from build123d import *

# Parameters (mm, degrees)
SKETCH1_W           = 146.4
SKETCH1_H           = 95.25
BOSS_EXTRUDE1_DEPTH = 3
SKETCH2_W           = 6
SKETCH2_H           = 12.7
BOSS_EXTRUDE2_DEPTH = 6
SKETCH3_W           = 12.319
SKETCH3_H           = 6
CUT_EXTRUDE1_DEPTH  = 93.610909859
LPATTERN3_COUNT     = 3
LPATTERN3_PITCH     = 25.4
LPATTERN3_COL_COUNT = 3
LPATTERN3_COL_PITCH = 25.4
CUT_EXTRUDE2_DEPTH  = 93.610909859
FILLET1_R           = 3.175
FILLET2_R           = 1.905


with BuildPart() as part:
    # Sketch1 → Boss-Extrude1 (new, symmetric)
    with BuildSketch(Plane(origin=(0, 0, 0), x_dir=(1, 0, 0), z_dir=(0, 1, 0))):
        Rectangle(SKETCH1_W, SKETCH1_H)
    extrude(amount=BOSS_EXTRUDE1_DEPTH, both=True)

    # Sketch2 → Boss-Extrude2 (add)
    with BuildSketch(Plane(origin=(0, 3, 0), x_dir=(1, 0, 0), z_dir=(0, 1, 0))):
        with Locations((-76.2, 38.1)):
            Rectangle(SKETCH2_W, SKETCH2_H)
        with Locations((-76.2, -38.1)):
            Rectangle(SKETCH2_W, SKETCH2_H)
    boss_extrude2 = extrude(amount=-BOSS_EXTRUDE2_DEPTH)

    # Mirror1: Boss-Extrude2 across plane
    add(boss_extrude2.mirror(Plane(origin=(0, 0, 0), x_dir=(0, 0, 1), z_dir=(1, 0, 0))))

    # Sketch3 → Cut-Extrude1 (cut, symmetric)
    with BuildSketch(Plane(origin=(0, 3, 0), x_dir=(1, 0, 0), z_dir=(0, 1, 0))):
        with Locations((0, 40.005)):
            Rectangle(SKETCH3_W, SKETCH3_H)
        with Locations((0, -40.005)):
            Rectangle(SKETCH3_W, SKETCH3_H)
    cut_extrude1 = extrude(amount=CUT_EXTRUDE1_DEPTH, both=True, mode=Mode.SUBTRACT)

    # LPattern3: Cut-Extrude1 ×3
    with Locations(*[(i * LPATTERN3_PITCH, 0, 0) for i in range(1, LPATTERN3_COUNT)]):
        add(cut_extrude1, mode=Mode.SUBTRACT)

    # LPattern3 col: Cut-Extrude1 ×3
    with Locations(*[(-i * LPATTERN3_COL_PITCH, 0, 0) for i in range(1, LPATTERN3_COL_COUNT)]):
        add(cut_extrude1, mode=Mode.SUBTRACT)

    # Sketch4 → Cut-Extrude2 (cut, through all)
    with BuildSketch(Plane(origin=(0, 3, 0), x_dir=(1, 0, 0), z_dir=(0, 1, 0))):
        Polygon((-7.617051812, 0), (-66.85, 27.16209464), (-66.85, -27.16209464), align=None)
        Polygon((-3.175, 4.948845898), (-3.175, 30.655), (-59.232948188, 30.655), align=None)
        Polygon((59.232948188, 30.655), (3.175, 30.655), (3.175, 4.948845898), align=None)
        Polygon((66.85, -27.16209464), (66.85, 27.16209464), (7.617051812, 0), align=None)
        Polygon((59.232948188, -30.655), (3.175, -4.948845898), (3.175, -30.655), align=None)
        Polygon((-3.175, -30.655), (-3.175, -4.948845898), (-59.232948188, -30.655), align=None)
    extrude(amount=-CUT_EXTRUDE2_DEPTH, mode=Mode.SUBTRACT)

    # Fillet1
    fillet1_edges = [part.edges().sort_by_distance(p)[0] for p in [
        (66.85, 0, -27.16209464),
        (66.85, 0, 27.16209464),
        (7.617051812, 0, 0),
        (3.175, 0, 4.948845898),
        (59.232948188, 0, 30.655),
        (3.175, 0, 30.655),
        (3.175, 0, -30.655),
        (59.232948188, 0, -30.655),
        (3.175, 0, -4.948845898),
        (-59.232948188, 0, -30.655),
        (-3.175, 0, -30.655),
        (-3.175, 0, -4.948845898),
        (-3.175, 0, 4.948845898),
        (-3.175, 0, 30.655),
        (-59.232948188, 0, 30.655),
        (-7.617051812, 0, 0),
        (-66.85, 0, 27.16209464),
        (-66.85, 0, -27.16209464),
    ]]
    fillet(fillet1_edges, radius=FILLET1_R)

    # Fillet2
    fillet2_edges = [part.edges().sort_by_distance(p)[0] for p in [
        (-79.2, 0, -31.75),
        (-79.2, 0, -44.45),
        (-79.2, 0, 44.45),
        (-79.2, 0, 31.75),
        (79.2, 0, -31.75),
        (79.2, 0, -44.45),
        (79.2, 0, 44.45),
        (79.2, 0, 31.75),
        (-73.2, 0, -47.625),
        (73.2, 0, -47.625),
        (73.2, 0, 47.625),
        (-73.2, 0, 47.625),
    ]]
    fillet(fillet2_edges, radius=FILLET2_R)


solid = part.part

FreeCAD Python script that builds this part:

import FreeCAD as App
import Part
import Sketcher
from FreeCAD import Vector
Q = App.Units.Quantity


def edges_at(feature, points):
    """Names of the edges that pass closest to the given points."""
    edges = feature.Shape.Edges
    near = lambda p: min(range(len(edges)), key=lambda i: edges[i].distToShape(Part.Vertex(*p))[0])
    return sorted({f"Edge{near(p) + 1}" for p in points})

doc = App.newDocument("Part")
body = doc.addObject("PartDesign::Body", "Body")

sketch1 = doc.addObject("Sketcher::SketchObject", "Sketch")
body.addObject(sketch1)
sketch1.AttachmentSupport = (doc.XZ_Plane, [""])
sketch1.MapMode = "FlatFace"
sketch1.addGeometry([
    Part.LineSegment(Vector(-73, -48, 0), Vector(-73, 48, 0)),
    Part.LineSegment(Vector(-73, 48, 0), Vector(73, 48, 0)),
    Part.LineSegment(Vector(73, 48, 0), Vector(73, -48, 0)),
    Part.LineSegment(Vector(73, -48, 0), Vector(-73, -48, 0)),
], False)
sketch1.addConstraint([
    Sketcher.Constraint("Coincident", 0, 2, 1, 1),
    Sketcher.Constraint("Coincident", 1, 2, 2, 1),
    Sketcher.Constraint("Coincident", 2, 2, 3, 1),
    Sketcher.Constraint("Coincident", 3, 2, 0, 1),
    Sketcher.Constraint("Vertical", 0),
    Sketcher.Constraint("Horizontal", 1),
    Sketcher.Constraint("Vertical", 2),
    Sketcher.Constraint("Horizontal", 3),
    Sketcher.Constraint("Symmetric", 0, 2, 2, 2, -1, 1),
    Sketcher.Constraint("DistanceY", 0, 1, 0, 2, Q("3.75 in")),
    Sketcher.Constraint("DistanceX", 1, 1, 1, 2, 146.4),
])
pad1 = doc.addObject("PartDesign::Pad", "Pad")
body.addObject(pad1)
pad1.Profile = sketch1
pad1.Length = 6
pad1.Midplane = True

sketch2 = doc.addObject("Sketcher::SketchObject", "Sketch001")
body.addObject(sketch2)
sketch2.AttachmentSupport = (doc.XZ_Plane, [""])
sketch2.MapMode = "FlatFace"
sketch2.AttachmentOffset = App.Placement(Vector(0, 0, -3), App.Rotation())
sketch2.addGeometry([
    Part.LineSegment(Vector(-79, -44, 0), Vector(-79, -32, 0)),
    Part.LineSegment(Vector(-79, -32, 0), Vector(-73, -32, 0)),
    Part.LineSegment(Vector(-73, -32, 0), Vector(-73, -44, 0)),
    Part.LineSegment(Vector(-73, -44, 0), Vector(-79, -44, 0)),
    Part.LineSegment(Vector(-79, 32, 0), Vector(-79, 44, 0)),
    Part.LineSegment(Vector(-79, 44, 0), Vector(-73, 44, 0)),
    Part.LineSegment(Vector(-73, 44, 0), Vector(-73, 32, 0)),
    Part.LineSegment(Vector(-73, 32, 0), Vector(-79, 32, 0)),
], False)
sketch2.addConstraint([
    Sketcher.Constraint("Coincident", 0, 2, 1, 1),
    Sketcher.Constraint("Coincident", 1, 2, 2, 1),
    Sketcher.Constraint("Coincident", 2, 2, 3, 1),
    Sketcher.Constraint("Coincident", 3, 2, 0, 1),
    Sketcher.Constraint("Coincident", 4, 2, 5, 1),
    Sketcher.Constraint("Coincident", 5, 2, 6, 1),
    Sketcher.Constraint("Coincident", 6, 2, 7, 1),
    Sketcher.Constraint("Coincident", 7, 2, 4, 1),
    Sketcher.Constraint("Vertical", 0),
    Sketcher.Constraint("Horizontal", 1),
    Sketcher.Constraint("Vertical", 2),
    Sketcher.Constraint("Horizontal", 3),
    Sketcher.Constraint("Vertical", 4),
    Sketcher.Constraint("Horizontal", 5),
    Sketcher.Constraint("Vertical", 6),
    Sketcher.Constraint("Horizontal", 7),
    Sketcher.Constraint("Symmetric", 3, 2, 4, 2, -1),
    Sketcher.Constraint("Symmetric", 1, 2, 6, 2, -1),
    Sketcher.Constraint("DistanceY", 0, 1, 0, 2, Q("0.5 in")),
    Sketcher.Constraint("DistanceY", 0, 2, 4, 2, Q("3 in")),
    Sketcher.Constraint("DistanceX", 1, 1, 1, 2, 6.0),
    Sketcher.Constraint("DistanceX", 0, 2, -1, 1, 79.2),
])
pad2 = doc.addObject("PartDesign::Pad", "Pad001")
body.addObject(pad2)
pad2.Profile = sketch2
pad2.Length = 6
doc.recompute()

mirrored = doc.addObject("PartDesign::Mirrored", "Mirrored")
body.addObject(mirrored)
mirrored.Originals = [pad2]
mirrored.MirrorPlane = (doc.YZ_Plane, [""])
body.Tip = mirrored

sketch3 = doc.addObject("Sketcher::SketchObject", "Sketch002")
body.addObject(sketch3)
sketch3.AttachmentSupport = (doc.XZ_Plane, [""])
sketch3.MapMode = "FlatFace"
sketch3.AttachmentOffset = App.Placement(Vector(0, 0, -3), App.Rotation())
sketch3.addGeometry([
    Part.LineSegment(Vector(-6, -43, 0), Vector(-6, -37, 0)),
    Part.LineSegment(Vector(-6, -37, 0), Vector(6, -37, 0)),
    Part.LineSegment(Vector(6, -37, 0), Vector(6, -43, 0)),
    Part.LineSegment(Vector(6, -43, 0), Vector(-6, -43, 0)),
    Part.LineSegment(Vector(-6, 37, 0), Vector(-6, 43, 0)),
    Part.LineSegment(Vector(-6, 43, 0), Vector(6, 43, 0)),
    Part.LineSegment(Vector(6, 43, 0), Vector(6, 37, 0)),
    Part.LineSegment(Vector(6, 37, 0), Vector(-6, 37, 0)),
], False)
sketch3.addConstraint([
    Sketcher.Constraint("Coincident", 0, 2, 1, 1),
    Sketcher.Constraint("Coincident", 1, 2, 2, 1),
    Sketcher.Constraint("Coincident", 2, 2, 3, 1),
    Sketcher.Constraint("Coincident", 3, 2, 0, 1),
    Sketcher.Constraint("Coincident", 4, 2, 5, 1),
    Sketcher.Constraint("Coincident", 5, 2, 6, 1),
    Sketcher.Constraint("Coincident", 6, 2, 7, 1),
    Sketcher.Constraint("Coincident", 7, 2, 4, 1),
    Sketcher.Constraint("Vertical", 0),
    Sketcher.Constraint("Horizontal", 1),
    Sketcher.Constraint("Vertical", 2),
    Sketcher.Constraint("Horizontal", 3),
    Sketcher.Constraint("Vertical", 4),
    Sketcher.Constraint("Horizontal", 5),
    Sketcher.Constraint("Vertical", 6),
    Sketcher.Constraint("Horizontal", 7),
    Sketcher.Constraint("Symmetric", 2, 2, 4, 2, -1, 1),
    Sketcher.Constraint("Symmetric", 0, 2, 6, 2, -1, 1),
    Sketcher.Constraint("Vertical", 3, 2, 4, 2),
    Sketcher.Constraint("DistanceX", 1, 1, 1, 2, Q("0.485 in")),
    Sketcher.Constraint("DistanceY", 0, 2, 4, 2, Q("3.15 in")),
    Sketcher.Constraint("DistanceY", 0, 1, 0, 2, 6.0),
])
pocket1 = doc.addObject("PartDesign::Pocket", "Pocket")
body.addObject(pocket1)
pocket1.Profile = sketch3
pocket1.Length = 187.22182
pocket1.Midplane = True
doc.recompute()

linearpattern = doc.addObject("PartDesign::LinearPattern", "LinearPattern")
body.addObject(linearpattern)
linearpattern.Originals = [pocket1]
linearpattern.Direction = (doc.X_Axis, [""])
linearpattern.Mode = "offset"
linearpattern.Offset = Q("1 in")
linearpattern.Occurrences = 3
body.Tip = linearpattern
doc.recompute()

linearpattern2 = doc.addObject("PartDesign::LinearPattern", "LinearPattern001")
body.addObject(linearpattern2)
linearpattern2.Originals = [pocket1]
linearpattern2.Direction = (doc.X_Axis, [""])
linearpattern2.Mode = "offset"
linearpattern2.Offset = Q("1 in")
linearpattern2.Occurrences = 3
linearpattern2.Reversed = True
body.Tip = linearpattern2

sketch4 = doc.addObject("Sketcher::SketchObject", "Sketch003")
body.addObject(sketch4)
sketch4.AttachmentSupport = (doc.XZ_Plane, [""])
sketch4.MapMode = "FlatFace"
sketch4.AttachmentOffset = App.Placement(Vector(0, 0, -3), App.Rotation())
sketch4.addGeometry([
    Part.LineSegment(Vector(-8, 0, 0), Vector(-67, -27, 0)),
    Part.LineSegment(Vector(-67, -27, 0), Vector(-67, 27, 0)),
    Part.LineSegment(Vector(-67, 27, 0), Vector(-8, 0, 0)),
    Part.LineSegment(Vector(-3, -5, 0), Vector(-3, -31, 0)),
    Part.LineSegment(Vector(-3, -31, 0), Vector(-59, -31, 0)),
    Part.LineSegment(Vector(-59, -31, 0), Vector(-3, -5, 0)),
    Part.LineSegment(Vector(59, -31, 0), Vector(3, -31, 0)),
    Part.LineSegment(Vector(3, -31, 0), Vector(3, -5, 0)),
    Part.LineSegment(Vector(3, -5, 0), Vector(59, -31, 0)),
    Part.LineSegment(Vector(67, 27, 0), Vector(67, -27, 0)),
    Part.LineSegment(Vector(67, -27, 0), Vector(8, 0, 0)),
    Part.LineSegment(Vector(8, 0, 0), Vector(67, 27, 0)),
    Part.LineSegment(Vector(59, 31, 0), Vector(3, 5, 0)),
    Part.LineSegment(Vector(3, 5, 0), Vector(3, 31, 0)),
    Part.LineSegment(Vector(3, 31, 0), Vector(59, 31, 0)),
    Part.LineSegment(Vector(-3, 31, 0), Vector(-3, 5, 0)),
    Part.LineSegment(Vector(-3, 5, 0), Vector(-59, 31, 0)),
    Part.LineSegment(Vector(-59, 31, 0), Vector(-3, 31, 0)),
], False)
sketch4.addConstraint([
    Sketcher.Constraint("Coincident", 0, 2, 1, 1),
    Sketcher.Constraint("Coincident", 1, 2, 2, 1),
    Sketcher.Constraint("Coincident", 2, 2, 0, 1),
    Sketcher.Constraint("Coincident", 3, 2, 4, 1),
    Sketcher.Constraint("Coincident", 4, 2, 5, 1),
    Sketcher.Constraint("Coincident", 5, 2, 3, 1),
    Sketcher.Constraint("Coincident", 6, 2, 7, 1),
    Sketcher.Constraint("Coincident", 7, 2, 8, 1),
    Sketcher.Constraint("Coincident", 8, 2, 6, 1),
    Sketcher.Constraint("Coincident", 9, 2, 10, 1),
    Sketcher.Constraint("Coincident", 10, 2, 11, 1),
    Sketcher.Constraint("Coincident", 11, 2, 9, 1),
    Sketcher.Constraint("Coincident", 12, 2, 13, 1),
    Sketcher.Constraint("Coincident", 13, 2, 14, 1),
    Sketcher.Constraint("Coincident", 14, 2, 12, 1),
    Sketcher.Constraint("Coincident", 15, 2, 16, 1),
    Sketcher.Constraint("Coincident", 16, 2, 17, 1),
    Sketcher.Constraint("Coincident", 17, 2, 15, 1),
    Sketcher.Constraint("Vertical", 1),
    Sketcher.Constraint("Vertical", 3),
    Sketcher.Constraint("Horizontal", 4),
    Sketcher.Constraint("Horizontal", 6),
    Sketcher.Constraint("Vertical", 7),
    Sketcher.Constraint("Vertical", 9),
    Sketcher.Constraint("Vertical", 13),
    Sketcher.Constraint("Horizontal", 14),
    Sketcher.Constraint("Vertical", 15),
    Sketcher.Constraint("Horizontal", 17),
    Sketcher.Constraint("Symmetric", 1, 2, 9, 2, -1, 1),
    Sketcher.Constraint("Symmetric", 2, 2, 10, 2, -1, 1),
    Sketcher.Constraint("Symmetric", 5, 2, 12, 2, -1, 1),
    Sketcher.Constraint("Symmetric", 4, 2, 14, 2, -1, 1),
    Sketcher.Constraint("Symmetric", 7, 2, 15, 2, -1, 1),
    Sketcher.Constraint("Symmetric", 8, 2, 16, 2, -1, 1),
    Sketcher.Constraint("Symmetric", 3, 2, 6, 2, -2),
    Sketcher.Constraint("PointOnObject", 2, 2, -1),
    Sketcher.Constraint("Parallel", 0, 5),
    Sketcher.Constraint("Parallel", 2, 8),
    Sketcher.Constraint("Parallel", 5, 11),
    Sketcher.Constraint("Horizontal", 5, 2, 7, 2),
    Sketcher.Constraint("Horizontal", 0, 2, 9, 2),
    Sketcher.Constraint("DistanceX", 3, 2, 6, 2, Q("0.25 in")),
    Sketcher.Constraint("Distance", 5, 61.6709),
    Sketcher.Constraint("DistanceX", 4, 2, 4, 1, 56.057948),
    Sketcher.Constraint("DistanceY", 1, 1, 1, 2, 54.324189),
    Sketcher.Constraint("DistanceX", 0, 2, -1, 1, 66.85),
    Sketcher.Constraint("DistanceY", 3, 2, -1, 1, 30.655),
])
pocket2 = doc.addObject("PartDesign::Pocket", "Pocket001")
body.addObject(pocket2)
pocket2.Profile = sketch4
pocket2.Type = "ThroughAll"
pocket2.Reversed = True
doc.recompute()

fillet = doc.addObject("PartDesign::Fillet", "Fillet")
body.addObject(fillet)
fillet.Base = (pocket2, edges_at(pocket2, [
    (66.85, 0, -27.162),
    (66.85, 0, 27.162),
    (7.617, 0, 0),
    (3.175, 0, 4.949),
    (59.233, 0, 30.655),
    (3.175, 0, 30.655),
    (3.175, 0, -30.655),
    (59.233, 0, -30.655),
    (3.175, 0, -4.949),
    (-59.233, 0, -30.655),
    (-3.175, 0, -30.655),
    (-3.175, 0, -4.949),
    (-3.175, 0, 4.949),
    (-3.175, 0, 30.655),
    (-59.233, 0, 30.655),
    (-7.617, 0, 0),
    (-66.85, 0, 27.162),
    (-66.85, 0, -27.162),
]))
fillet.Radius = Q("0.125 in")
doc.recompute()

fillet2 = doc.addObject("PartDesign::Fillet", "Fillet001")
body.addObject(fillet2)
fillet2.Base = (fillet, edges_at(fillet, [
    (-79.2, 0, -31.75),
    (-79.2, 0, -44.45),
    (-79.2, 0, 44.45),
    (-79.2, 0, 31.75),
    (79.2, 0, -31.75),
    (79.2, 0, -44.45),
    (79.2, 0, 44.45),
    (79.2, 0, 31.75),
    (-73.2, 0, -47.625),
    (73.2, 0, -47.625),
    (73.2, 0, 47.625),
    (-73.2, 0, 47.625),
]))
fillet2.Radius = Q("0.075 in")

doc.recompute()
